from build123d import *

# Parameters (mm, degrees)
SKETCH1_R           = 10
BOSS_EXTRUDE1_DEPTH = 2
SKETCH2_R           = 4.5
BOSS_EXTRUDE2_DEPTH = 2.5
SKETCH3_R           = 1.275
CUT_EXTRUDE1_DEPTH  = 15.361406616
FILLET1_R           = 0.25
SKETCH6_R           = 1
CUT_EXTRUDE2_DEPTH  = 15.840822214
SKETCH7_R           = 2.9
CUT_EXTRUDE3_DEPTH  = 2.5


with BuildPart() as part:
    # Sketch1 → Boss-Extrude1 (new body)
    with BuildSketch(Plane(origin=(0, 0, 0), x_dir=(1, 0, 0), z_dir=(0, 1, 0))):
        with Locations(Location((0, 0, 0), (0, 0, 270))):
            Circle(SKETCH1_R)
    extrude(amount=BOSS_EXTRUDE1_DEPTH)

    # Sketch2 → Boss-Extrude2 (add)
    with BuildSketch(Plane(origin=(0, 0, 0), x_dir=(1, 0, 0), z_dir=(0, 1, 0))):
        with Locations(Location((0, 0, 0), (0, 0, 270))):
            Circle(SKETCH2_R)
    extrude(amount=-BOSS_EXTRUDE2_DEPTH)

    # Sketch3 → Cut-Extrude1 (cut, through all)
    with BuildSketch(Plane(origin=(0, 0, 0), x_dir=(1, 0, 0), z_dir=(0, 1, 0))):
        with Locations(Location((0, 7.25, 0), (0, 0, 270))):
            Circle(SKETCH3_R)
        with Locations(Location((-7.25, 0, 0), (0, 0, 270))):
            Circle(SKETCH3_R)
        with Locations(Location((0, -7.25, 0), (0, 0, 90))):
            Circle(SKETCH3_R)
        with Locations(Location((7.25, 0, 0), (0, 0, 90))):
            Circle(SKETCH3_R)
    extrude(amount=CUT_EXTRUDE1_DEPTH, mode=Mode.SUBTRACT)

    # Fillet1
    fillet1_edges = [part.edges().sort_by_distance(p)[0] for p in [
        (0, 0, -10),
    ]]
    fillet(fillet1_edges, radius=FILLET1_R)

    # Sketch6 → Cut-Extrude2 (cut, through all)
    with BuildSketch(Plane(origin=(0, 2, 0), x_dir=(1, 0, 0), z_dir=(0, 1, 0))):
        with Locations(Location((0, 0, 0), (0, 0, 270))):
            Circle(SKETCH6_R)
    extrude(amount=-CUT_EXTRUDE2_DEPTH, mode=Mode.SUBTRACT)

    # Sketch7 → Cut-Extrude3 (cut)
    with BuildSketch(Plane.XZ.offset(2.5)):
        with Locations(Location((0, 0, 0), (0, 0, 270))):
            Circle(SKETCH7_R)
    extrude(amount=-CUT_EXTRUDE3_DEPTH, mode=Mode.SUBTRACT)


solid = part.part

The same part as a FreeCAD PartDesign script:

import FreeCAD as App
import Part
import Sketcher
from FreeCAD import Vector


def edges_at(feature, points):
    """Names of the edges that pass closest to the given points."""
    edges = feature.Shape.Edges
    near = lambda p: min(range(len(edges)), key=lambda i: edges[i].distToShape(Part.Vertex(*p))[0])
    return sorted({f"Edge{near(p) + 1}" for p in points})

doc = App.newDocument("Part")
params = doc.addObject("Spreadsheet::Sheet", "Params")
for row, (alias, value) in enumerate([
    ("sketch1_diameter", "20 mm"),
    ("pad1_length", "2 mm"),
    ("sketch2_diameter", "9 mm"),
    ("pad2_length", "2.5 mm"),
    ("sketch3_diameter", "2.55 mm"),
    ("fillet_radius", "0.25 mm"),
    ("sketch4_diameter", "2 mm"),
    ("sketch5_diameter", "5.8 mm"),
    ("pocket3_length", "2.5 mm"),
], start=1):
    params.set(f"A{row}", alias)
    params.set(f"B{row}", "=" + value)
    params.setAlias(f"B{row}", alias)

body = doc.addObject("PartDesign::Body", "Body")

# Sketch on XZ plane
sketch1 = body.newObject("Sketcher::SketchObject", "Sketch")
sketch1.AttachmentSupport = (doc.getObject("XZ_Plane"), [""])
sketch1.MapMode = "FlatFace"
sketch1.addGeometry(Part.Circle(Vector(0, 0, 0), Vector(0, 0, 1), 10), False)
sketch1.addConstraint(Sketcher.Constraint("Coincident", 0, 3, -1, 1))
sketch1.addConstraint(Sketcher.Constraint("Diameter", 0, 20.0))
sketch1.setExpression("Constraints[1]", "Params.sketch1_diameter")
pad1 = body.newObject("PartDesign::Pad", "Pad")
pad1.Profile = sketch1
pad1.setExpression("Length", "Params.pad1_length")
pad1.Reversed = True

# Sketch on XZ plane
sketch2 = body.newObject("Sketcher::SketchObject", "Sketch001")
sketch2.AttachmentSupport = (doc.getObject("XZ_Plane"), [""])
sketch2.MapMode = "FlatFace"
sketch2.addGeometry(Part.Circle(Vector(0, 0, 0), Vector(0, 0, 1), 4.5), False)
sketch2.addConstraint(Sketcher.Constraint("Coincident", 0, 3, -1, 1))
sketch2.addConstraint(Sketcher.Constraint("Diameter", 0, 9.0))
sketch2.setExpression("Constraints[1]", "Params.sketch2_diameter")
pad2 = body.newObject("PartDesign::Pad", "Pad001")
pad2.Profile = sketch2
pad2.setExpression("Length", "Params.pad2_length")

# Sketch on XZ plane
sketch3 = body.newObject("Sketcher::SketchObject", "Sketch002")
sketch3.AttachmentSupport = (doc.getObject("XZ_Plane"), [""])
sketch3.MapMode = "FlatFace"
sketch3.addGeometry(Part.Circle(Vector(0, -7.2, 0), Vector(0, 0, 1), 1.3), False)
sketch3.addGeometry(Part.Circle(Vector(-7.2, 0, 0), Vector(0, 0, 1), 1.3), False)
sketch3.addGeometry(Part.Circle(Vector(0, 7.2, 0), Vector(0, 0, 1), 1.3), False)
sketch3.addGeometry(Part.Circle(Vector(7.2, 0, 0), Vector(0, 0, 1), 1.3), False)
sketch3.addConstraint(Sketcher.Constraint("Equal", 0, 1))
sketch3.addConstraint(Sketcher.Constraint("Equal", 1, 2))
sketch3.addConstraint(Sketcher.Constraint("Equal", 2, 3))
sketch3.addConstraint(Sketcher.Constraint("Symmetric", 0, 3, 2, 3, -1, 1))
sketch3.addConstraint(Sketcher.Constraint("Symmetric", 1, 3, 3, 3, -1, 1))
sketch3.addConstraint(Sketcher.Constraint("PointOnObject", 0, 3, -2))
sketch3.addConstraint(Sketcher.Constraint("PointOnObject", 1, 3, -1))
sketch3.addConstraint(Sketcher.Constraint("Diameter", 0, 2.55))
sketch3.addConstraint(Sketcher.Constraint("DistanceY", 0, 3, 2, 3, 14.5))
sketch3.addConstraint(Sketcher.Constraint("DistanceX", 1, 3, 3, 3, 14.5))
sketch3.setExpression("Constraints[7]", "Params.sketch3_diameter")
pocket1 = body.newObject("PartDesign::Pocket", "Pocket")
pocket1.Profile = sketch3
pocket1.Type = "ThroughAll"
doc.recompute()

fillet = body.newObject("PartDesign::Fillet", "Fillet")
fillet.Base = (pocket1, edges_at(pocket1, [(0, 0, -10)]))
fillet.setExpression("Radius", "Params.fillet_radius")

# Sketch on XZ plane
sketch4 = body.newObject("Sketcher::SketchObject", "Sketch003")
sketch4.AttachmentSupport = (doc.getObject("XZ_Plane"), [""])
sketch4.MapMode = "FlatFace"
sketch4.AttachmentOffset = App.Placement(Vector(0, 0, -2), App.Rotation())
sketch4.addGeometry(Part.Circle(Vector(0, 0, 0), Vector(0, 0, 1), 1), False)
sketch4.addConstraint(Sketcher.Constraint("Coincident", 0, 3, -1, 1))
sketch4.addConstraint(Sketcher.Constraint("Diameter", 0, 2.0))
sketch4.setExpression("Constraints[1]", "Params.sketch4_diameter")
pocket2 = body.newObject("PartDesign::Pocket", "Pocket001")
pocket2.Profile = sketch4
pocket2.Type = "ThroughAll"
pocket2.Reversed = True

# Sketch on XZ plane
sketch5 = body.newObject("Sketcher::SketchObject", "Sketch004")
sketch5.AttachmentSupport = (doc.getObject("XZ_Plane"), [""])
sketch5.MapMode = "FlatFace"
sketch5.AttachmentOffset = App.Placement(Vector(0, 0, 2.5), App.Rotation())
sketch5.addGeometry(Part.Circle(Vector(0, 0, 0), Vector(0, 0, 1), 2.9), False)
sketch5.addConstraint(Sketcher.Constraint("Coincident", 0, 3, -1, 1))
sketch5.addConstraint(Sketcher.Constraint("Diameter", 0, 5.8))
sketch5.setExpression("Constraints[1]", "Params.sketch5_diameter")
pocket3 = body.newObject("PartDesign::Pocket", "Pocket002")
pocket3.Profile = sketch5
pocket3.setExpression("Length", "Params.pocket3_length")

doc.recompute()
